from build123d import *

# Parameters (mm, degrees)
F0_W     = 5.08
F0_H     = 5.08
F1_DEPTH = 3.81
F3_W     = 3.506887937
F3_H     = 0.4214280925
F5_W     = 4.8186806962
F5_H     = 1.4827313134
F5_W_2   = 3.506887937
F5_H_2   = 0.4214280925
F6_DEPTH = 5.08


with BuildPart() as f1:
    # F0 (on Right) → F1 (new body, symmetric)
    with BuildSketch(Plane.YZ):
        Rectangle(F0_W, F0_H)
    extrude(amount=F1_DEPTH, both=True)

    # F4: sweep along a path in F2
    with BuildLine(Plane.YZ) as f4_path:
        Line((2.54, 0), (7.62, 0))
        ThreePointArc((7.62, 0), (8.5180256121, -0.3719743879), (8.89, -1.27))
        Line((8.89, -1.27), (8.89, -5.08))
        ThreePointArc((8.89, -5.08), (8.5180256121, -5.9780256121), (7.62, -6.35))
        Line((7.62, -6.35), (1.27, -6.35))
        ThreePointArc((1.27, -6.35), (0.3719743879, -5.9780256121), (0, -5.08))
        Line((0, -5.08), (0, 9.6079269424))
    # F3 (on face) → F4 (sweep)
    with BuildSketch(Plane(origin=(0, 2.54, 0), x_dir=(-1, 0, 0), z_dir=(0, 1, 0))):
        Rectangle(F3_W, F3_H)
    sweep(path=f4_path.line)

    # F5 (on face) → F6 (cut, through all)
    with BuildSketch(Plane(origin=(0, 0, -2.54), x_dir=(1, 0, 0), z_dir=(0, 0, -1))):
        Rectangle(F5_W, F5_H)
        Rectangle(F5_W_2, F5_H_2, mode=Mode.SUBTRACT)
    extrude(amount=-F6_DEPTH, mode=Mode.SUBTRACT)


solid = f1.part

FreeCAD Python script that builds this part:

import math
import FreeCAD as App
import Part
import Sketcher

V = App.Vector
Q = App.Units.Quantity


def add_polygon(sketch, points):
    """Adds a closed chain of lines whose ends are joined by coincident constraints."""
    first, n = sketch.GeometryCount, len(points)
    for a, b in zip(points, points[1:] + points[:1]):
        sketch.addGeometry(Part.LineSegment(App.Vector(*a, 0), App.Vector(*b, 0)), False)
    for i in range(n):
        sketch.addConstraint(Sketcher.Constraint("Coincident", first + i, 2, first + (i + 1) % n, 1))

doc = App.newDocument("Part")
body = doc.addObject("PartDesign::Body", "Body")

# Sketch on YZ plane
sketch1 = doc.addObject("Sketcher::SketchObject", "Sketch")
body.addObject(sketch1)
sketch1.AttachmentSupport = (doc.YZ_Plane, [""])
sketch1.MapMode = "FlatFace"
add_polygon(sketch1, [(-3, 3), (-3, -3), (3, -3), (3, 3)])  # lines 0-3
sketch1.addConstraint([
    Sketcher.Constraint("Vertical", 0),
    Sketcher.Constraint("Horizontal", 1),
    Sketcher.Constraint("Vertical", 2),
    Sketcher.Constraint("Horizontal", 3),
    Sketcher.Constraint("Symmetric", 0, 2, 2, 2, -1, 1),
    Sketcher.Constraint("Equal", 3, 0),
    Sketcher.Constraint("DistanceX", 1, 1, 1, 2, Q("0.2 in")),
])
pad1 = doc.addObject("PartDesign::Pad", "Pad")
body.addObject(pad1)
pad1.Profile = sketch1
pad1.Length = Q("0.3 in")
pad1.Midplane = True

# Sketch on XZ plane
sketch2 = doc.addObject("Sketcher::SketchObject", "Sketch001")
body.addObject(sketch2)
sketch2.AttachmentSupport = (doc.XZ_Plane, [""])
sketch2.MapMode = "FlatFace"
sketch2.AttachmentOffset = App.Placement(V(0, 0, -0.1 * 25.4), App.Rotation())
add_polygon(sketch2, [(1.75, 0.21), (1.75, -0.21), (-1.75, -0.21), (-1.75, 0.21)])  # lines 0-3
sketch2.addConstraint([
    Sketcher.Constraint("Vertical", 0),
    Sketcher.Constraint("Horizontal", 1),
    Sketcher.Constraint("Vertical", 2),
    Sketcher.Constraint("Horizontal", 3),
    Sketcher.Constraint("Symmetric", 0, 2, 2, 2, -1, 1),
    Sketcher.Constraint("DistanceY", 0, 2, 0, 1, 0.421428),
    Sketcher.Constraint("DistanceX", 1, 2, 1, 1, 3.506888),
])

# Sketch on YZ plane
sketch3 = doc.addObject("Sketcher::SketchObject", "Sketch002")
body.addObject(sketch3)
sketch3.AttachmentSupport = (doc.YZ_Plane, [""])
sketch3.MapMode = "FlatFace"
sketch3.addGeometry([
    Part.LineSegment(V(2.5, 0, 0), V(7.6, 0, 0)),  # 0
    Part.ArcOfCircle(Part.Circle(V(7.6, -1.3, 0), V(0, 0, 1), 1.3), math.radians(0), math.radians(90)),  # 1
    Part.LineSegment(V(8.9, -1.3, 0), V(8.9, -5.1, 0)),  # 2
    Part.ArcOfCircle(Part.Circle(V(7.6, -5.1, 0), V(0, 0, 1), 1.3), math.radians(-90), math.radians(0)),  # 3
    Part.LineSegment(V(7.6, -6.3, 0), V(1.3, -6.3, 0)),  # 4
    Part.ArcOfCircle(Part.Circle(V(1.3, -5.1, 0), V(0, 0, 1), 1.3), math.radians(180), math.radians(270)),  # 5
    Part.LineSegment(V(0, -5.1, 0), V(0, 9.6, 0)),  # 6
], False)
sketch3.addConstraint([
    Sketcher.Constraint("Tangent", 0, 2, 1, 2),
    Sketcher.Constraint("Tangent", 1, 1, 2, 1),
    Sketcher.Constraint("Tangent", 2, 2, 3, 2),
    Sketcher.Constraint("Tangent", 3, 1, 4, 1),
    Sketcher.Constraint("Tangent", 4, 2, 5, 2),
    Sketcher.Constraint("Tangent", 5, 1, 6, 1),
    Sketcher.Constraint("Horizontal", 0),
    Sketcher.Constraint("Vertical", 2),
    Sketcher.Constraint("Horizontal", 4),
    Sketcher.Constraint("Vertical", 6),
    Sketcher.Constraint("Equal", 1, 3),
    Sketcher.Constraint("Equal", 3, 5),
    Sketcher.Constraint("PointOnObject", 0, 1, -1),
    Sketcher.Constraint("PointOnObject", 5, 1, -2),
    Sketcher.Constraint("Radius", 1, Q("0.05 in")),
    Sketcher.Constraint("DistanceX", 0, 1, 0, 2, Q("0.2 in")),
    Sketcher.Constraint("DistanceX", 4, 2, 4, 1, Q("0.25 in")),
    Sketcher.Constraint("DistanceY", 2, 2, 2, 1, Q("0.15 in")),
    Sketcher.Constraint("DistanceY", 6, 1, 6, 2, 14.687927),
])
doc.recompute()

additivepipe = doc.addObject("PartDesign::AdditivePipe", "AdditivePipe")
body.addObject(additivepipe)
additivepipe.Profile = sketch2
additivepipe.Spine = (sketch3, ["Edge1", "Edge2", "Edge3", "Edge4", "Edge5", "Edge6", "Edge7"])

# Sketch on XY plane
sketch4 = doc.addObject("Sketcher::SketchObject", "Sketch003")
body.addObject(sketch4)
sketch4.AttachmentSupport = (doc.XY_Plane, [""])
sketch4.MapMode = "FlatFace"
sketch4.AttachmentOffset = App.Placement(V(0, 0, -0.1 * 25.4), App.Rotation())
add_polygon(sketch4, [(-2.41, -0.74), (-2.41, 0.74), (2.41, 0.74), (2.41, -0.74)])  # lines 0-3
add_polygon(sketch4, [(1.75, 0.21), (-1.75, 0.21), (-1.75, -0.21), (1.75, -0.21)])  # lines 4-7
sketch4.addConstraint([
    Sketcher.Constraint("Vertical", 0),
    Sketcher.Constraint("Horizontal", 1),
    Sketcher.Constraint("Vertical", 2),
    Sketcher.Constraint("Horizontal", 3),
    Sketcher.Constraint("Horizontal", 4),
    Sketcher.Constraint("Vertical", 5),
    Sketcher.Constraint("Horizontal", 6),
    Sketcher.Constraint("Vertical", 7),
    Sketcher.Constraint("Symmetric", 0, 2, 2, 2, -1, 1),
    Sketcher.Constraint("Symmetric", 4, 2, 6, 2, -1, 1),
    Sketcher.Constraint("DistanceX", 1, 1, 1, 2, 4.818681),
    Sketcher.Constraint("DistanceY", 0, 1, 0, 2, 1.482731),
    Sketcher.Constraint("DistanceY", 5, 2, 5, 1, 0.421428),
    Sketcher.Constraint("DistanceX", 4, 2, 4, 1, 3.506888),
])
pocket1 = doc.addObject("PartDesign::Pocket", "Pocket")
body.addObject(pocket1)
pocket1.Profile = sketch4
pocket1.Type = "ThroughAll"
pocket1.Reversed = True

doc.recompute()
